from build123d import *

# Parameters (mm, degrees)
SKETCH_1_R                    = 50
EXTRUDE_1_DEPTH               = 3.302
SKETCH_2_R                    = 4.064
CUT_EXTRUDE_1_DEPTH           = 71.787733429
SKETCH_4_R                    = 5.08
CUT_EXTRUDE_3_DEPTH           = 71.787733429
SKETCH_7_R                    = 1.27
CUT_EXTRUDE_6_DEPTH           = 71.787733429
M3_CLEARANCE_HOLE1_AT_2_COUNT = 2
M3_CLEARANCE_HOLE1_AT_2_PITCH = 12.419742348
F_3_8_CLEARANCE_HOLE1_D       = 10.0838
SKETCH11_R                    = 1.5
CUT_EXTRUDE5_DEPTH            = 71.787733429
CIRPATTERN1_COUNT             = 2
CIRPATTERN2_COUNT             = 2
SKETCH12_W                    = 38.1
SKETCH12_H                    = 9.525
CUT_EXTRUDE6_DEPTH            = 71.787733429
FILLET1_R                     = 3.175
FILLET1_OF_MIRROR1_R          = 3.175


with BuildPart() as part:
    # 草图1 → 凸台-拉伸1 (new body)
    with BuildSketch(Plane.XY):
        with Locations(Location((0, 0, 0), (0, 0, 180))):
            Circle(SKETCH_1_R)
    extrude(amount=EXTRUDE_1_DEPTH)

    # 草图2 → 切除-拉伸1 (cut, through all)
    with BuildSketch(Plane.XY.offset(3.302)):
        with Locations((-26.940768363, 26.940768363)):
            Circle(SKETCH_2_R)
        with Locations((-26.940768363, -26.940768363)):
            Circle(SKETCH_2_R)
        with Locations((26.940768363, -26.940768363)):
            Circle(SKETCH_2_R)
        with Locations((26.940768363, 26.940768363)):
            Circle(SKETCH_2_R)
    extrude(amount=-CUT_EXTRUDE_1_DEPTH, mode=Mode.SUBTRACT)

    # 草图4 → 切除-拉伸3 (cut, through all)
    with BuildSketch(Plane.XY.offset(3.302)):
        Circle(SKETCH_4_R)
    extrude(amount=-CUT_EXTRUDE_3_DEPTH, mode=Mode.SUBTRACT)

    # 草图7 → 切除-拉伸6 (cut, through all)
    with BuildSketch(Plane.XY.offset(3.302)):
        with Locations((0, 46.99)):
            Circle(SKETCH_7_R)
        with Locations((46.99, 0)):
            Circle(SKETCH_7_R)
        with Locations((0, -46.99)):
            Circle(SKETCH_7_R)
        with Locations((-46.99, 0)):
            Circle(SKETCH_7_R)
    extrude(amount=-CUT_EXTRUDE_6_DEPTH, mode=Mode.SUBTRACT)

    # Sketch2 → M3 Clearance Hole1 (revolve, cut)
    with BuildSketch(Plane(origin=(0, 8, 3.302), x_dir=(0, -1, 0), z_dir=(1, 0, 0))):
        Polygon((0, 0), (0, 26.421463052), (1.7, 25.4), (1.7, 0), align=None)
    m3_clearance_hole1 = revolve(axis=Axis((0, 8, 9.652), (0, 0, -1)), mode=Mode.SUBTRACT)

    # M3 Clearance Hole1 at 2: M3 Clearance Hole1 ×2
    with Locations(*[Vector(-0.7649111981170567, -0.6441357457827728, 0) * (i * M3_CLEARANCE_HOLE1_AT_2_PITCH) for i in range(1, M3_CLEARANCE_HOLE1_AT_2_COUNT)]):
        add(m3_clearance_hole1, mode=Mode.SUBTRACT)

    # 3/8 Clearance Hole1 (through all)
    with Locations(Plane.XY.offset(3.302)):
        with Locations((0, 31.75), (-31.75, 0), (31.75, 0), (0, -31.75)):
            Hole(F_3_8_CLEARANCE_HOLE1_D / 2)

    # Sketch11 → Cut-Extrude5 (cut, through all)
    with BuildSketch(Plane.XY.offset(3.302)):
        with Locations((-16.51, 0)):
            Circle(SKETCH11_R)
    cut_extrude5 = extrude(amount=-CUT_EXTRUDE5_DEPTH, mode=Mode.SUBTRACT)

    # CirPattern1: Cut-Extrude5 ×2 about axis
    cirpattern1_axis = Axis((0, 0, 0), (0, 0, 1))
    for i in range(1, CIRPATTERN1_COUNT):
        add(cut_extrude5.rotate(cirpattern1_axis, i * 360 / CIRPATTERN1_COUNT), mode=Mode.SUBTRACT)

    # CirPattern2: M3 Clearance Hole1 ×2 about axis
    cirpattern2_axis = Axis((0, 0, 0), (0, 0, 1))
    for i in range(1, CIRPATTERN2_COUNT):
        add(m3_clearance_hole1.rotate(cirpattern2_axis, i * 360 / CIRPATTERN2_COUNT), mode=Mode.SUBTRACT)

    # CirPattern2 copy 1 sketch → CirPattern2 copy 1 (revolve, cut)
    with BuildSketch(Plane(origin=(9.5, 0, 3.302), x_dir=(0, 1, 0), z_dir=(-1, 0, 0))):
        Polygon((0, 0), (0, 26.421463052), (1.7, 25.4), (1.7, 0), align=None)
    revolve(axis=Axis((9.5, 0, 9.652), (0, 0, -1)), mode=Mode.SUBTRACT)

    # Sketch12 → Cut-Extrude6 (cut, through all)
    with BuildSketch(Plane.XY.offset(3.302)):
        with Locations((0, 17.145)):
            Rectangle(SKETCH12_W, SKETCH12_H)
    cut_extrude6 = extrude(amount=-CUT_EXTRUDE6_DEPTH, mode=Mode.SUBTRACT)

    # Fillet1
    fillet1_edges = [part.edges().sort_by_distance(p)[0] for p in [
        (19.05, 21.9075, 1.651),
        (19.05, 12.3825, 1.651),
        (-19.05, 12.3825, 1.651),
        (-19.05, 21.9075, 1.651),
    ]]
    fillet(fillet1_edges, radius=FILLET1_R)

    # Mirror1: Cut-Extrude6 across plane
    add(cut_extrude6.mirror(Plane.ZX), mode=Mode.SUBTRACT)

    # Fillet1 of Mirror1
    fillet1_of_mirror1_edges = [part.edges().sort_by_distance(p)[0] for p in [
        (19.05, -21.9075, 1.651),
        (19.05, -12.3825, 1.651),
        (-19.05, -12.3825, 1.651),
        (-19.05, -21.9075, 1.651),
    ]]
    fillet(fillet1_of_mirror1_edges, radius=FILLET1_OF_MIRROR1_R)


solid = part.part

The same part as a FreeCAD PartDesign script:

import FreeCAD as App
import Part
import Sketcher

V = App.Vector
Q = App.Units.Quantity


def edges_at(feature, points):
    """Names of the edges that pass closest to the given points."""
    edges = feature.Shape.Edges
    near = lambda p: min(range(len(edges)), key=lambda i: edges[i].distToShape(Part.Vertex(*p))[0])
    return sorted({f"Edge{near(p) + 1}" for p in points})


def add_polygon(sketch, points):
    """Adds a closed chain of lines whose ends are joined by coincident constraints."""
    first, n = sketch.GeometryCount, len(points)
    for a, b in zip(points, points[1:] + points[:1]):
        sketch.addGeometry(Part.LineSegment(App.Vector(*a, 0), App.Vector(*b, 0)), False)
    for i in range(n):
        sketch.addConstraint(Sketcher.Constraint("Coincident", first + i, 2, first + (i + 1) % n, 1))

doc = App.newDocument("Part")
body = doc.addObject("PartDesign::Body", "Body")

# Sketch on XY plane
sketch1 = body.newObject("Sketcher::SketchObject", "Sketch")
sketch1.AttachmentSupport = (doc.getObject("XY_Plane"), [""])
sketch1.MapMode = "FlatFace"
sketch1.addGeometry(Part.Circle(V(0, 0, 0), V(0, 0, 1), 50), False)
sketch1.addConstraint([
    Sketcher.Constraint("Coincident", 0, 3, -1, 1),
    Sketcher.Constraint("Diameter", 0, 100.0),
])
pad1 = body.newObject("PartDesign::Pad", "Pad")
pad1.Profile = sketch1
pad1.Length = Q("0.13 in")

# Sketch on XY plane
sketch2 = body.newObject("Sketcher::SketchObject", "Sketch001")
sketch2.AttachmentSupport = (doc.getObject("XY_Plane"), [""])
sketch2.MapMode = "FlatFace"
sketch2.AttachmentOffset = App.Placement(V(0, 0, 0.13 * 25.4), App.Rotation())
sketch2.addGeometry([
    Part.Circle(V(-26.9, 26.9, 0), V(0, 0, 1), 4.1),
    Part.Circle(V(-26.9, -26.9, 0), V(0, 0, 1), 4.1),
    Part.Circle(V(26.9, -26.9, 0), V(0, 0, 1), 4.1),
    Part.Circle(V(26.9, 26.9, 0), V(0, 0, 1), 4.1),
], False)
sketch2.addConstraint([
    Sketcher.Constraint("Equal", 0, 1),
    Sketcher.Constraint("Equal", 1, 2),
    Sketcher.Constraint("Equal", 2, 3),
    Sketcher.Constraint("Symmetric", 0, 3, 2, 3, -1, 1),
    Sketcher.Constraint("Symmetric", 1, 3, 3, 3, -1, 1),
    Sketcher.Constraint("Symmetric", 1, 3, 2, 3, -2),
    Sketcher.Constraint("Diameter", 0, Q("0.32 in")),
    Sketcher.Constraint("DistanceX", 0, 3, -1, 1, 26.940768),
    Sketcher.Constraint("DistanceY", -1, 1, 0, 3, 26.940768),
])
pocket1 = body.newObject("PartDesign::Pocket", "Pocket")
pocket1.Profile = sketch2
pocket1.Type = "ThroughAll"

# Sketch on XY plane
sketch3 = body.newObject("Sketcher::SketchObject", "Sketch002")
sketch3.AttachmentSupport = (doc.getObject("XY_Plane"), [""])
sketch3.MapMode = "FlatFace"
sketch3.AttachmentOffset = App.Placement(V(0, 0, 0.13 * 25.4), App.Rotation())
sketch3.addGeometry(Part.Circle(V(0, 0, 0), V(0, 0, 1), 5), False)
sketch3.addConstraint([
    Sketcher.Constraint("Coincident", 0, 3, -1, 1),
    Sketcher.Constraint("Diameter", 0, Q("0.4 in")),
])
pocket2 = body.newObject("PartDesign::Pocket", "Pocket001")
pocket2.Profile = sketch3
pocket2.Type = "ThroughAll"

# Sketch on XY plane
sketch4 = body.newObject("Sketcher::SketchObject", "Sketch003")
sketch4.AttachmentSupport = (doc.getObject("XY_Plane"), [""])
sketch4.MapMode = "FlatFace"
sketch4.AttachmentOffset = App.Placement(V(0, 0, 0.13 * 25.4), App.Rotation())
sketch4.addGeometry([
    Part.Circle(V(0, 47, 0), V(0, 0, 1), 1.3),
    Part.Circle(V(47, 0, 0), V(0, 0, 1), 1.3),
    Part.Circle(V(0, -47, 0), V(0, 0, 1), 1.3),
    Part.Circle(V(-47, 0, 0), V(0, 0, 1), 1.3),
], False)
sketch4.addConstraint([
    Sketcher.Constraint("Equal", 0, 1),
    Sketcher.Constraint("Equal", 1, 2),
    Sketcher.Constraint("Equal", 2, 3),
    Sketcher.Constraint("Symmetric", 0, 3, 2, 3, -1, 1),
    Sketcher.Constraint("Symmetric", 1, 3, 3, 3, -1, 1),
    Sketcher.Constraint("PointOnObject", 0, 3, -2),
    Sketcher.Constraint("PointOnObject", 1, 3, -1),
    Sketcher.Constraint("Diameter", 0, Q("0.1 in")),
    Sketcher.Constraint("DistanceY", 2, 3, 0, 3, Q("3.7 in")),
    Sketcher.Constraint("DistanceX", 3, 3, 1, 3, Q("3.7 in")),
])
pocket3 = body.newObject("PartDesign::Pocket", "Pocket002")
pocket3.Profile = sketch4
pocket3.Type = "ThroughAll"

# Sketch on YZ plane
sketch5 = body.newObject("Sketcher::SketchObject", "Sketch004")
sketch5.AttachmentSupport = (doc.getObject("YZ_Plane"), [""])
sketch5.MapMode = "FlatFace"
add_polygon(sketch5, [(8, -23.1), (8, 3.3), (6.3, 3.3), (6.3, -22.1)])  # lines 0-3
sketch5.addGeometry(Part.LineSegment(V(8, 3.3, 0), V(8, -23.1, 0)), True)  # axis
sketch5.addConstraint([
    Sketcher.Constraint("Vertical", 0),
    Sketcher.Constraint("Horizontal", 1),
    Sketcher.Constraint("Vertical", 2),
    Sketcher.Constraint("Vertical", 4),
    Sketcher.Constraint("Coincident", 4, 1, 0, 2),
    Sketcher.Constraint("Equal", 0, 4),
    Sketcher.Constraint("DistanceY", 2, 2, 2, 1, Q("1 in")),
    Sketcher.Constraint("Angle", 3, Q("-31 deg")),
    Sketcher.Constraint("DistanceY", -1, 1, 0, 2, Q("0.13 in")),
    Sketcher.Constraint("DistanceX", 1, 2, 1, 1, 1.7),
    Sketcher.Constraint("DistanceX", -1, 1, 0, 2, 8.0),
])
groove = body.newObject("PartDesign::Groove", "Groove")
groove.Profile = sketch5
groove.ReferenceAxis = (sketch5, ["Axis0"])
groove.Angle = 360
doc.recompute()

datumline = body.newObject("PartDesign::Line", "DatumLine")
datumline.Placement = App.Placement(V(0, 0, 0), App.Rotation(V(0, 0, 1), V(-0.764911198, -0.644135746, 0)))
linearpattern = body.newObject("PartDesign::LinearPattern", "LinearPattern")
linearpattern.Originals = [groove]
linearpattern.Direction = (datumline, [""])
linearpattern.Mode = "offset"
linearpattern.Offset = 12.419742
linearpattern.Occurrences = 2
body.Tip = linearpattern

# Sketch on XY plane
sketch6 = body.newObject("Sketcher::SketchObject", "Sketch005")
sketch6.AttachmentSupport = (doc.getObject("XY_Plane"), [""])
sketch6.MapMode = "FlatFace"
sketch6.AttachmentOffset = App.Placement(V(0, 0, 0.13 * 25.4), App.Rotation())
sketch6.addGeometry([
    Part.Circle(V(0, 32, 0), V(0, 0, 1), 5),
    Part.Circle(V(-32, 0, 0), V(0, 0, 1), 5),
    Part.Circle(V(32, 0, 0), V(0, 0, 1), 5),
    Part.Circle(V(0, -32, 0), V(0, 0, 1), 5),
], False)
sketch6.addConstraint([
    Sketcher.Constraint("Equal", 0, 1),
    Sketcher.Constraint("Equal", 1, 2),
    Sketcher.Constraint("Equal", 2, 3),
    Sketcher.Constraint("Symmetric", 1, 3, 2, 3, -1, 1),
    Sketcher.Constraint("Symmetric", 0, 3, 3, 3, -1, 1),
    Sketcher.Constraint("PointOnObject", 0, 3, -2),
    Sketcher.Constraint("PointOnObject", 1, 3, -1),
    Sketcher.Constraint("Diameter", 0, Q("0.397 in")),
    Sketcher.Constraint("DistanceX", 1, 3, 2, 3, Q("2.5 in")),
    Sketcher.Constraint("DistanceY", 3, 3, 0, 3, Q("2.5 in")),
])
doc.recompute()
hole = body.newObject("PartDesign::Hole", "Hole")
hole.Profile = sketch6
hole.ThreadType = "None"
hole.Diameter = Q("0.397 in")
hole.DepthType = "ThroughAll"

# Sketch on XY plane
sketch7 = body.newObject("Sketcher::SketchObject", "Sketch006")
sketch7.AttachmentSupport = (doc.getObject("XY_Plane"), [""])
sketch7.MapMode = "FlatFace"
sketch7.AttachmentOffset = App.Placement(V(0, 0, 0.13 * 25.4), App.Rotation())
sketch7.addGeometry(Part.Circle(V(-16.5, 0, 0), V(0, 0, 1), 1.5), False)
sketch7.addConstraint([
    Sketcher.Constraint("PointOnObject", 0, 3, -1),
    Sketcher.Constraint("Diameter", 0, 3.0),
    Sketcher.Constraint("DistanceX", 0, 3, -1, 1, Q("0.65 in")),
])
pocket4 = body.newObject("PartDesign::Pocket", "Pocket003")
pocket4.Profile = sketch7
pocket4.Type = "ThroughAll"
doc.recompute()

polarpattern = body.newObject("PartDesign::PolarPattern", "PolarPattern")
polarpattern.Originals = [pocket4]
polarpattern.Axis = (doc.getObject("Z_Axis"), [""])
polarpattern.Angle = 360
polarpattern.Occurrences = 2
body.Tip = polarpattern
doc.recompute()

polarpattern2 = body.newObject("PartDesign::PolarPattern", "PolarPattern001")
polarpattern2.Originals = [groove]
polarpattern2.Axis = (doc.getObject("Z_Axis"), [""])
polarpattern2.Angle = 360
polarpattern2.Occurrences = 2
body.Tip = polarpattern2

# Sketch on YZ plane
sketch8 = body.newObject("Sketcher::SketchObject", "Sketch007")
sketch8.AttachmentSupport = (doc.getObject("YZ_Plane"), [""])
sketch8.MapMode = "FlatFace"
sketch8.AttachmentOffset = App.Placement(V(0, 0, 9.5), App.Rotation())
add_polygon(sketch8, [(0, -23.1), (0, 3.3), (1.7, 3.3), (1.7, -22.1)])  # lines 0-3
sketch8.addConstraint([
    Sketcher.Constraint("Vertical", 0),
    Sketcher.Constraint("Horizontal", 1),
    Sketcher.Constraint("Vertical", 2),
    Sketcher.Constraint("PointOnObject", 0, 2, -2),
    Sketcher.Constraint("DistanceY", 2, 2, 2, 1, Q("1 in")),
    Sketcher.Constraint("Angle", 3, Q("-149 deg")),
    Sketcher.Constraint("DistanceY", -1, 1, 0, 2, Q("0.13 in")),
    Sketcher.Constraint("DistanceX", 1, 1, 1, 2, 1.7),
])
groove2 = body.newObject("PartDesign::Groove", "Groove001")
groove2.Profile = sketch8
groove2.ReferenceAxis = (sketch8, ["V_Axis"])
groove2.Angle = 360

# Sketch on XY plane
sketch9 = body.newObject("Sketcher::SketchObject", "Sketch008")
sketch9.AttachmentSupport = (doc.getObject("XY_Plane"), [""])
sketch9.MapMode = "FlatFace"
sketch9.AttachmentOffset = App.Placement(V(0, 0, 0.13 * 25.4), App.Rotation())
add_polygon(sketch9, [(-19, 22), (-19, 12), (19, 12), (19, 22)])  # lines 0-3
sketch9.addConstraint([
    Sketcher.Constraint("Vertical", 0),
    Sketcher.Constraint("Horizontal", 1),
    Sketcher.Constraint("Vertical", 2),
    Sketcher.Constraint("Horizontal", 3),
    Sketcher.Constraint("DistanceX", 1, 1, 1, 2, Q("1.5 in")),
    Sketcher.Constraint("DistanceY", 0, 2, 0, 1, Q("0.375 in")),
    Sketcher.Constraint("DistanceX", 0, 2, -1, 1, Q("0.75 in")),
    Sketcher.Constraint("DistanceY", -1, 1, 0, 2, Q("0.4875 in")),
])
pocket5 = body.newObject("PartDesign::Pocket", "Pocket004")
pocket5.Profile = sketch9
pocket5.Type = "ThroughAll"
doc.recompute()

fillet = body.newObject("PartDesign::Fillet", "Fillet")
fillet.Base = (pocket5, edges_at(pocket5, [
    (19.05, 21.907, 1.651),
    (19.05, 12.383, 1.651),
    (-19.05, 12.383, 1.651),
    (-19.05, 21.907, 1.651),
]))
fillet.Radius = Q("0.125 in")
doc.recompute()

mirrored = body.newObject("PartDesign::Mirrored", "Mirrored")
mirrored.Originals = [pocket5]
mirrored.MirrorPlane = (doc.getObject("XZ_Plane"), [""])
body.Tip = mirrored
doc.recompute()

fillet2 = body.newObject("PartDesign::Fillet", "Fillet001")
fillet2.Base = (mirrored, edges_at(mirrored, [
    (19.05, -21.907, 1.651),
    (19.05, -12.383, 1.651),
    (-19.05, -12.383, 1.651),
    (-19.05, -21.907, 1.651),
]))
fillet2.Radius = Q("0.125 in")

doc.recompute()
